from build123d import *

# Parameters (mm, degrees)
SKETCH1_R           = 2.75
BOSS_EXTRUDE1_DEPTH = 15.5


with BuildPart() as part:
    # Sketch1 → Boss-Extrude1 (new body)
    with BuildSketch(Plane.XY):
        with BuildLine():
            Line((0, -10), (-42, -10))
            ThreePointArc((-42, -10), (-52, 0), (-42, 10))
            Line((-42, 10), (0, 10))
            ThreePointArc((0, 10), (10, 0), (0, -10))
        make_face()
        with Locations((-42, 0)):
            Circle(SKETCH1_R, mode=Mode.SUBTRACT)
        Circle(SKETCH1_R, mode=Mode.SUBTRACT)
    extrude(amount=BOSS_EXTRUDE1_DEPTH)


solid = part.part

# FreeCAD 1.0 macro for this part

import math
import FreeCAD as App
import Part
import Sketcher
from FreeCAD import Vector

doc = App.newDocument("Part")
body = doc.addObject("PartDesign::Body", "Body")

# Sketch on XY plane
sketch1 = body.newObject("Sketcher::SketchObject", "Sketch")
sketch1.AttachmentSupport = (doc.getObject("XY_Plane"), [""])
sketch1.MapMode = "FlatFace"
sketch1.addGeometry([
    Part.LineSegment(Vector(-42, -10, 0), Vector(0, -10, 0)),  # 0
    Part.ArcOfCircle(Part.Circle(Vector(0, 0, 0), Vector(0, 0, 1), 10), math.radians(-90), math.radians(90)),  # 1
    Part.LineSegment(Vector(0, 10, 0), Vector(-42, 10, 0)),  # 2
    Part.ArcOfCircle(Part.Circle(Vector(-42, 0, 0), Vector(0, 0, 1), 10), math.radians(90), math.radians(270)),  # 3
    Part.Circle(Vector(0, 0, 0), Vector(0, 0, 1), 2.75),  # 4
    Part.Circle(Vector(-42, 0, 0), Vector(0, 0, 1), 2.75),  # 5
], False)
sketch1.addConstraint([
    Sketcher.Constraint("Tangent", 0, 2, 1, 1),
    Sketcher.Constraint("Tangent", 1, 2, 2, 1),
    Sketcher.Constraint("Tangent", 2, 2, 3, 1),
    Sketcher.Constraint("Tangent", 3, 2, 0, 1),
    Sketcher.Constraint("Horizontal", 0),
    Sketcher.Constraint("Horizontal", 2),
    Sketcher.Constraint("Coincident", 1, 3, -1, 1),
    Sketcher.Constraint("Coincident", 4, 3, -1, 1),
    Sketcher.Constraint("Coincident", 5, 3, 3, 3),
    Sketcher.Constraint("Equal", 4, 5),
    Sketcher.Constraint("Radius", 1, 10.0),
    Sketcher.Constraint("Diameter", 4, 5.5),
    Sketcher.Constraint("DistanceX", 0, 1, 0, 2, 42.0),
])
pad1 = body.newObject("PartDesign::Pad", "Pad")
pad1.Profile = sketch1
pad1.Length = 15.5

doc.recompute()
